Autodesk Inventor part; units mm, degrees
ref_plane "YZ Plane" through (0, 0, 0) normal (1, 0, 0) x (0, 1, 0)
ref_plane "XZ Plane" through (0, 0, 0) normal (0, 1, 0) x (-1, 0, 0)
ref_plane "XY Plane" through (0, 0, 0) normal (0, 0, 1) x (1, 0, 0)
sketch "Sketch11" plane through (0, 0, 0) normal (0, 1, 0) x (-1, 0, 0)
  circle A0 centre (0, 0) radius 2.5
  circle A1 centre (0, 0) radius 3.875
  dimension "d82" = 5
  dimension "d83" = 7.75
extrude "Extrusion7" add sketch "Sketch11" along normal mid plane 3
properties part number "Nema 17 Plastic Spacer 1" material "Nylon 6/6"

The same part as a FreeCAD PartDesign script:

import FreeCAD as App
import Part
import Sketcher
Q = App.Units.Quantity

doc = App.newDocument("Part")
params = doc.addObject("Spreadsheet::Sheet", "Params")
for row, (alias, value) in enumerate([
    ("sketch1_diameter", "5 mm"),
    ("sketch1_diameter2", "7.75 mm"),
    ("pad1_length", "3 mm"),
], start=1):
    params.set(f"A{row}", alias)
    params.set(f"B{row}", "=" + value)
    params.setAlias(f"B{row}", alias)

body = doc.addObject("PartDesign::Body", "Body")

# Sketch on XZ plane
sketch1 = body.newObject("Sketcher::SketchObject", "Sketch")
sketch1.AttachmentSupport = (doc.getObject("XZ_Plane"), [""])
sketch1.MapMode = "FlatFace"
sketch1.addGeometry([
    Part.Circle(App.Vector(0, 0, 0), App.Vector(0, 0, 1), 3.875),
    Part.Circle(App.Vector(0, 0, 0), App.Vector(0, 0, 1), 2.5),
], False)
sketch1.addConstraint([
    Sketcher.Constraint("Coincident", 0, 3, -1, 1),
    Sketcher.Constraint("Coincident", 1, 3, -1, 1),
    Sketcher.Constraint("Diameter", 1, Q("5 mm")),
    Sketcher.Constraint("Diameter", 0, Q("7.75 mm")),
])
sketch1.setExpression("Constraints[2]", "Params.sketch1_diameter")
sketch1.setExpression("Constraints[3]", "Params.sketch1_diameter2")
pad1 = body.newObject("PartDesign::Pad", "Pad")
pad1.Profile = sketch1
pad1.setExpression("Length", "Params.pad1_length")
pad1.Midplane = True

doc.recompute()
